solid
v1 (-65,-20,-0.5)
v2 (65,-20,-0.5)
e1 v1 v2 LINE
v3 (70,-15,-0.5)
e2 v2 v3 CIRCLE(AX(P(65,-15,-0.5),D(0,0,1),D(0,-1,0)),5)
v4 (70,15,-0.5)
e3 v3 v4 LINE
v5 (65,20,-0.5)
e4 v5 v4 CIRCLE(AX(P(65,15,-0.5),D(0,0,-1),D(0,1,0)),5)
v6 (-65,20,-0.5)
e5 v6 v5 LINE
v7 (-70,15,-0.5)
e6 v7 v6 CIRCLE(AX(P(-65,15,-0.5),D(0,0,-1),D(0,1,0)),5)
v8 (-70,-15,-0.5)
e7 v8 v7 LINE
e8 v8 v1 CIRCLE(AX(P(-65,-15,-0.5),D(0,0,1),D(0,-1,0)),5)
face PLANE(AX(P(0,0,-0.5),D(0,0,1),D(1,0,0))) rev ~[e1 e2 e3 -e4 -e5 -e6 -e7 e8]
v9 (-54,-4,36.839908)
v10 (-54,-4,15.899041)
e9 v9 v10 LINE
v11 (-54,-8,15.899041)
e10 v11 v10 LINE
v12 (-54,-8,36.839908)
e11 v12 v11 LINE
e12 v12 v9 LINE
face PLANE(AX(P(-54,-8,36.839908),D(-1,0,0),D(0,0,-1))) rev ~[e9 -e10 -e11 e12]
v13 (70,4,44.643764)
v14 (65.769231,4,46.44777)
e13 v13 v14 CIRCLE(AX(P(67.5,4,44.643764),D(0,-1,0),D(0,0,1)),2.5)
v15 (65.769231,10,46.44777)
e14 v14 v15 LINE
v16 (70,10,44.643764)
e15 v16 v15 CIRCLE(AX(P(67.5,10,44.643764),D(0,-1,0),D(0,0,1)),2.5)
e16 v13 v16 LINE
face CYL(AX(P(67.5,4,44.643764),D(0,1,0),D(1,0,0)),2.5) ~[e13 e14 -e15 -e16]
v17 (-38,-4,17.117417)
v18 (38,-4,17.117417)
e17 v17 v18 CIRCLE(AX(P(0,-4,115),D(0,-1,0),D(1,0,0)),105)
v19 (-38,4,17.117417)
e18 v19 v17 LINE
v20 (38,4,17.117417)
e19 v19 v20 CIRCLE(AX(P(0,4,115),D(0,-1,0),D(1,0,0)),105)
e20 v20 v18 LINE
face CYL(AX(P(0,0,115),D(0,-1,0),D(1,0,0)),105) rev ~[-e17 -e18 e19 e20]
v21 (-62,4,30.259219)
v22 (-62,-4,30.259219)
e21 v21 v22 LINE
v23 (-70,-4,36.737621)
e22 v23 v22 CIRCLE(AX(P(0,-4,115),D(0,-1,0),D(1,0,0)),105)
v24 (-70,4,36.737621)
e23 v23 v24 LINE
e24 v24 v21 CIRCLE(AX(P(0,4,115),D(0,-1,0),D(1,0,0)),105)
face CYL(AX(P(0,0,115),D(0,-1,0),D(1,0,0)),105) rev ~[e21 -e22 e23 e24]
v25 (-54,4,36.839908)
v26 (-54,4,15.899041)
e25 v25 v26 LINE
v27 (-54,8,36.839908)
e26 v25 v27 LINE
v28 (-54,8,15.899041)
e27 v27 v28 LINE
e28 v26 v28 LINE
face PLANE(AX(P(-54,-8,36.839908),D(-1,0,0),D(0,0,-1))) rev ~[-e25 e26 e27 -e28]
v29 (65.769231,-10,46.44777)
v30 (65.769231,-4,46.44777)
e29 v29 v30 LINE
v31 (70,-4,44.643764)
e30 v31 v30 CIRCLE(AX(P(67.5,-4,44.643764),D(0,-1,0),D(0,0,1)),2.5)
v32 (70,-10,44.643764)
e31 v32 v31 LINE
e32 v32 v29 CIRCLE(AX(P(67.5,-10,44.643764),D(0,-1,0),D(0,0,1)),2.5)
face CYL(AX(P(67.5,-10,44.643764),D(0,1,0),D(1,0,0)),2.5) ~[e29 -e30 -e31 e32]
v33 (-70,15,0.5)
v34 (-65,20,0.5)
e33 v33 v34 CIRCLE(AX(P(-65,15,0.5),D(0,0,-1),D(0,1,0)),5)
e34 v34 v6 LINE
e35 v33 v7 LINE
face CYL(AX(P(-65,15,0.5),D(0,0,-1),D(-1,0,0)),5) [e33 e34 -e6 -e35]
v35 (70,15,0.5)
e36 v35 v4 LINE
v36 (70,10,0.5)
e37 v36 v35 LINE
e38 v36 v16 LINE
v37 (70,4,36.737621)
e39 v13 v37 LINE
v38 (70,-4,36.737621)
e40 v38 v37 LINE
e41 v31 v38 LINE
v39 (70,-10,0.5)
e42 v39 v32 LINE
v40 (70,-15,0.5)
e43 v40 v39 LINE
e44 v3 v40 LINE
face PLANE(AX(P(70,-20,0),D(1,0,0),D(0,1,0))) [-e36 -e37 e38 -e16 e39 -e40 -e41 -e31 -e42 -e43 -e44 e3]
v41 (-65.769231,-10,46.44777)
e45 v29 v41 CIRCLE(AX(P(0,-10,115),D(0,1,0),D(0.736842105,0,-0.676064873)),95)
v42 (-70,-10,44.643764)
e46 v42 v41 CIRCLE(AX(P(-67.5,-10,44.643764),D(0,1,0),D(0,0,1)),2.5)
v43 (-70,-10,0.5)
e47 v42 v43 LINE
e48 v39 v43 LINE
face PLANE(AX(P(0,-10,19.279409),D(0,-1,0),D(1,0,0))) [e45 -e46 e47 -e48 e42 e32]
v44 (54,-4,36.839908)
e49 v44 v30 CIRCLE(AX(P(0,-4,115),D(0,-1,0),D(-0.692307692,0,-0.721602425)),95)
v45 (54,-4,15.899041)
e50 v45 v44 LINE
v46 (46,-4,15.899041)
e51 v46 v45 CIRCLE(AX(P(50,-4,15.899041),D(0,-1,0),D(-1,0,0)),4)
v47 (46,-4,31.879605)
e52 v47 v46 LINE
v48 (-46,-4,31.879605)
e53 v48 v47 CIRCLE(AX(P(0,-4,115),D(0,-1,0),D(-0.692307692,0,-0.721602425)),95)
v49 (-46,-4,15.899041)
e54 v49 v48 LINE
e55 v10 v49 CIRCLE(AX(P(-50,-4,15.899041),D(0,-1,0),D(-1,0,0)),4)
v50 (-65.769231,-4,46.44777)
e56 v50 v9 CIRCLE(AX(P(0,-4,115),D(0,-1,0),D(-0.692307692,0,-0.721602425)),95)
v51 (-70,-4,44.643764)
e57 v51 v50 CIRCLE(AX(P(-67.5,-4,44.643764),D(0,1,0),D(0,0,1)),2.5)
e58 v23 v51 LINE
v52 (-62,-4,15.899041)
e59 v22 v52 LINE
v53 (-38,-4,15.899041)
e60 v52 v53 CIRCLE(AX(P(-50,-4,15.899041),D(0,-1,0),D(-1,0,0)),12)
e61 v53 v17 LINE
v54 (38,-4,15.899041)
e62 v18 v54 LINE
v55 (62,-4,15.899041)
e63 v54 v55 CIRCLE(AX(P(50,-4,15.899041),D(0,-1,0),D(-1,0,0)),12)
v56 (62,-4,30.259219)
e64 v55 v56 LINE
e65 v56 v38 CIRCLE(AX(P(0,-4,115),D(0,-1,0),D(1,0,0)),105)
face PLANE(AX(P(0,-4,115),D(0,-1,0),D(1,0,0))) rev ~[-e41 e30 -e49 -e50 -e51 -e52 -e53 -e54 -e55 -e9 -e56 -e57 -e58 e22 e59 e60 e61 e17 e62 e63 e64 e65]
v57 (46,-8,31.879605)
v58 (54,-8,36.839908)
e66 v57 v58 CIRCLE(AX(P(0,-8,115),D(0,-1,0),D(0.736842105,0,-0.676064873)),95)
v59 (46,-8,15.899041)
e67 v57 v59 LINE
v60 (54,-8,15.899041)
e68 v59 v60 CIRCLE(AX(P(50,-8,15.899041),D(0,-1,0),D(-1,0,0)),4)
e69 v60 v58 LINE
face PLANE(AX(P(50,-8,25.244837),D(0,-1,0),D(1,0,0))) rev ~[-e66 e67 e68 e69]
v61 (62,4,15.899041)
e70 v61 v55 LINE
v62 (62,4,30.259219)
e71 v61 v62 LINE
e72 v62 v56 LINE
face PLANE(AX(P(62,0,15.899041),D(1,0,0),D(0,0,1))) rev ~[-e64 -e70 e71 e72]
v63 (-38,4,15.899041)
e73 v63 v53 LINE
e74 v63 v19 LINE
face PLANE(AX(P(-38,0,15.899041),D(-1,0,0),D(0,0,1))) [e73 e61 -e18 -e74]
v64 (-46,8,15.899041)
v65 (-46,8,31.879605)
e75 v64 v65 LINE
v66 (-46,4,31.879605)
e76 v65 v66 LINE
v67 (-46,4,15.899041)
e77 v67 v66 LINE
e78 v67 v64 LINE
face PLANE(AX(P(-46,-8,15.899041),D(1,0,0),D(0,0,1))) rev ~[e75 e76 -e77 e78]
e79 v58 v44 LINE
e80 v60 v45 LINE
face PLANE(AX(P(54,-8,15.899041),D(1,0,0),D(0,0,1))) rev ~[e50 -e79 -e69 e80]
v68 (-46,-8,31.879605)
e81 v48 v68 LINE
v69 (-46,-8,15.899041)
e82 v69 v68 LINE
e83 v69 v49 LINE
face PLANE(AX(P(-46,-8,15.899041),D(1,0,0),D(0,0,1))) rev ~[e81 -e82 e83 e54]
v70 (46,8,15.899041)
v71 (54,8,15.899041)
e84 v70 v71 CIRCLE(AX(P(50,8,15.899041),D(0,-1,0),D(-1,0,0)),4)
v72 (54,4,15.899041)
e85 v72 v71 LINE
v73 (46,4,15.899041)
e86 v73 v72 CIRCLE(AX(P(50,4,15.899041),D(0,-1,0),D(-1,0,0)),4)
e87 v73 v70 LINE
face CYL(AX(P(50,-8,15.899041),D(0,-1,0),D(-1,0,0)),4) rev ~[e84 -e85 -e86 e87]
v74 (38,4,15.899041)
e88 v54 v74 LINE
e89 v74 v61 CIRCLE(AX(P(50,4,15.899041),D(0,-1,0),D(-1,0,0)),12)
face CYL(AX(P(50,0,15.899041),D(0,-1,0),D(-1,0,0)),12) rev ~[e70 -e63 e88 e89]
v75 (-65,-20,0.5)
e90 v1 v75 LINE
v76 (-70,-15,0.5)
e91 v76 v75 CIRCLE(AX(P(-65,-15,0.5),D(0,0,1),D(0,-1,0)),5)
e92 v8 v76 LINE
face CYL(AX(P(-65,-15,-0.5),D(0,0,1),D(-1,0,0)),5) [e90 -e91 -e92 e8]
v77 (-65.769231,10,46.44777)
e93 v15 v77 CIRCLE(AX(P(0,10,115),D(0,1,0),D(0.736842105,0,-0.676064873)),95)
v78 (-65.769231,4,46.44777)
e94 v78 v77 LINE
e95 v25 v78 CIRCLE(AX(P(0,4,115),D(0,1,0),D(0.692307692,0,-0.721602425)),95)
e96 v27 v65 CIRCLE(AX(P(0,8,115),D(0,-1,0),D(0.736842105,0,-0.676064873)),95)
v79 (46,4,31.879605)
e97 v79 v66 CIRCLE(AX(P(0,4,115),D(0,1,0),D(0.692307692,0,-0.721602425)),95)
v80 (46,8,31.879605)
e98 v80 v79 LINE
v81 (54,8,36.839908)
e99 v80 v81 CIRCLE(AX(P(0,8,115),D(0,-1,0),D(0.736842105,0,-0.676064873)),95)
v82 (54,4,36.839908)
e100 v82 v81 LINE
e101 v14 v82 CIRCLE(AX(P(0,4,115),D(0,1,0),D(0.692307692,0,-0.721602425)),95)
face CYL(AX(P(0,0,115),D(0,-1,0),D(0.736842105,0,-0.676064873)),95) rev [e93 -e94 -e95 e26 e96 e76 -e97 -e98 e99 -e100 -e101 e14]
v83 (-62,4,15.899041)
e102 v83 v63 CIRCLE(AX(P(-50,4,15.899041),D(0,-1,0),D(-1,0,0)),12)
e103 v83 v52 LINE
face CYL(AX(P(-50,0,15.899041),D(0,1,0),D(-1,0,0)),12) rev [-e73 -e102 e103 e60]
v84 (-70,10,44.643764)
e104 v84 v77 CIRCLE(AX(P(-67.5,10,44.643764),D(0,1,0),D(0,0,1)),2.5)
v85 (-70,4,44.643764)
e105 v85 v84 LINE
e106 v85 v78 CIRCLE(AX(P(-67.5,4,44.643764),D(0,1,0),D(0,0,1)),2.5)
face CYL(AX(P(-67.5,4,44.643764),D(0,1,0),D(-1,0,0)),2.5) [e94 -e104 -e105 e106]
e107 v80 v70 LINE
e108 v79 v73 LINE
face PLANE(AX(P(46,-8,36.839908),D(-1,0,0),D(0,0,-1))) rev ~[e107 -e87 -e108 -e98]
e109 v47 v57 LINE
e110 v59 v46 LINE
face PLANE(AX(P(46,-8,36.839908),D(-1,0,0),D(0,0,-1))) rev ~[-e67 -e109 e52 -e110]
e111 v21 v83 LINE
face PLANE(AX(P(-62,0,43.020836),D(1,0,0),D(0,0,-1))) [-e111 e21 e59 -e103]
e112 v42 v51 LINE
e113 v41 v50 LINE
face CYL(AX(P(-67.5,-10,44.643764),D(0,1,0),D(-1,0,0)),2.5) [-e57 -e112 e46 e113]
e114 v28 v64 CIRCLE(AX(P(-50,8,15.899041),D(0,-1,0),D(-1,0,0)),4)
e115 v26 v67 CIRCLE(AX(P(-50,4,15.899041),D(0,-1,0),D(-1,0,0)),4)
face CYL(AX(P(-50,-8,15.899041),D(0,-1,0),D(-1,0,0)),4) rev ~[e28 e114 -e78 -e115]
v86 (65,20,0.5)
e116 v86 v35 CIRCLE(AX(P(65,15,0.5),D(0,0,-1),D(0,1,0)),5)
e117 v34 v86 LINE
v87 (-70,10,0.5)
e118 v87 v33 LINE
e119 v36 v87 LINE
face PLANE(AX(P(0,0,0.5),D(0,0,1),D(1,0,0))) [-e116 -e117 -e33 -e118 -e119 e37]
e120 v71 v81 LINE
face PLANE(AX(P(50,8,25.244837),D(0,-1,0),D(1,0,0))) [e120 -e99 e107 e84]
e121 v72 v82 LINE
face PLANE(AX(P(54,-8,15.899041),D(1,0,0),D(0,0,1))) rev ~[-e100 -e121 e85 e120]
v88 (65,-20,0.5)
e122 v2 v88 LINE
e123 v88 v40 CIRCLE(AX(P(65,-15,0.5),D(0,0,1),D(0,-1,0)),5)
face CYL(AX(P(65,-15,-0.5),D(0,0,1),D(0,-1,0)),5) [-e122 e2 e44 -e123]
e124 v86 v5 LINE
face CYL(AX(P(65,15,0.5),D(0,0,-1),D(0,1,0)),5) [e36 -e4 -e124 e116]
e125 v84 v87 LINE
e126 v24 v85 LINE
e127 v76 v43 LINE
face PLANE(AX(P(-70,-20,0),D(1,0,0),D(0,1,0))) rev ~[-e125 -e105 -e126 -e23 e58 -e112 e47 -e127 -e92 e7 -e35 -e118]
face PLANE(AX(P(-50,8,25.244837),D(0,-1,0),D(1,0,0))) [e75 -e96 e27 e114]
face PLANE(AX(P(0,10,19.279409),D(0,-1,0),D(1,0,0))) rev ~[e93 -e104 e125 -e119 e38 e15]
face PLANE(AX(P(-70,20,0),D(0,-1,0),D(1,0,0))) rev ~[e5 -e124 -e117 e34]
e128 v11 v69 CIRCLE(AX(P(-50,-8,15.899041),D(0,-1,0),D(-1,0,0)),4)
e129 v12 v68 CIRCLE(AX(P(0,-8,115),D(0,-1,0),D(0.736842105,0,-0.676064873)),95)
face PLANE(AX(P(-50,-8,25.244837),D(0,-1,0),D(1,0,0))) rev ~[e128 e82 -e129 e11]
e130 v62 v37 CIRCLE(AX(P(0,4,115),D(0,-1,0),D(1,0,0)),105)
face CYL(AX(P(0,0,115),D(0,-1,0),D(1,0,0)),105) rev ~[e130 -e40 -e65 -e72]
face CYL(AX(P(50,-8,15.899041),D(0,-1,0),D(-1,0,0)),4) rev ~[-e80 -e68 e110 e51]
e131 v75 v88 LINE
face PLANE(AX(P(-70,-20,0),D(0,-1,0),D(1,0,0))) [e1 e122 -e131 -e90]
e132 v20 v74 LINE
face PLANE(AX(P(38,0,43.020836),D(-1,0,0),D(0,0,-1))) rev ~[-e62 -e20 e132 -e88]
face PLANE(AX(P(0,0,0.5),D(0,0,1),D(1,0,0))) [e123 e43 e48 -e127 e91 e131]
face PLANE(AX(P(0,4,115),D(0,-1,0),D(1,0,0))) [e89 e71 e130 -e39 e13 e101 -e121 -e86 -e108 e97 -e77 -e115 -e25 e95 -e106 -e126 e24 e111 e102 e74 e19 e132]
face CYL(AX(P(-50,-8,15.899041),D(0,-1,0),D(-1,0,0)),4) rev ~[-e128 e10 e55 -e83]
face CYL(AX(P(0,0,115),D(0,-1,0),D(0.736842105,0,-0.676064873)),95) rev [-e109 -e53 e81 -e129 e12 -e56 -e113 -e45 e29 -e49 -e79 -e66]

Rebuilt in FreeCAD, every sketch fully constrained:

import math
import FreeCAD as App
import Part
import Sketcher


def edges_at(feature, points):
    """Names of the edges that pass closest to the given points."""
    edges = feature.Shape.Edges
    near = lambda p: min(range(len(edges)), key=lambda i: edges[i].distToShape(Part.Vertex(*p))[0])
    return sorted({f"Edge{near(p) + 1}" for p in points})


def add_polygon(sketch, points):
    """Adds a closed chain of lines whose ends are joined by coincident constraints."""
    first, n = sketch.GeometryCount, len(points)
    for a, b in zip(points, points[1:] + points[:1]):
        sketch.addGeometry(Part.LineSegment(App.Vector(*a, 0), App.Vector(*b, 0)), False)
    for i in range(n):
        sketch.addConstraint(Sketcher.Constraint("Coincident", first + i, 2, first + (i + 1) % n, 1))

doc = App.newDocument("Part")
body = doc.addObject("PartDesign::Body", "Body")

# Sketch on XZ plane
sketch1 = body.newObject("Sketcher::SketchObject", "Sketch")
sketch1.AttachmentSupport = (doc.getObject("XZ_Plane"), [""])
sketch1.MapMode = "FlatFace"
sketch1.addGeometry([
    Part.LineSegment(App.Vector(-70, 51, 0), App.Vector(-70, 0, 0)),
    Part.LineSegment(App.Vector(-70, 0, 0), App.Vector(70, 0, 0)),
    Part.LineSegment(App.Vector(70, 0, 0), App.Vector(70, 51, 0)),
    Part.ArcOfCircle(Part.Circle(App.Vector(0, 115, 0), App.Vector(0, 0, 1), 95), math.radians(-137), math.radians(-43)),
], False)
sketch1.addConstraint([
    Sketcher.Constraint("Coincident", 0, 2, 1, 1),
    Sketcher.Constraint("Coincident", 1, 2, 2, 1),
    Sketcher.Constraint("Coincident", 2, 2, 3, 2),
    Sketcher.Constraint("Coincident", 3, 1, 0, 1),
    Sketcher.Constraint("Vertical", 0),
    Sketcher.Constraint("Horizontal", 1),
    Sketcher.Constraint("Vertical", 2),
    Sketcher.Constraint("Symmetric", 0, 2, 1, 2, -1, 1),
    Sketcher.Constraint("PointOnObject", 3, 3, -2),
    Sketcher.Constraint("Radius", 3, 95.0),
    Sketcher.Constraint("DistanceX", 1, 1, 1, 2, 140.0),
    Sketcher.Constraint("DistanceY", -1, 1, 3, 3, 115.0),
])
pad1 = body.newObject("PartDesign::Pad", "Pad")
pad1.Profile = sketch1
pad1.Length = 20
pad1.Midplane = True

# Sketch on XZ plane
sketch2 = body.newObject("Sketcher::SketchObject", "Sketch001")
sketch2.AttachmentSupport = (doc.getObject("XZ_Plane"), [""])
sketch2.MapMode = "FlatFace"
sketch2.addGeometry(Part.Circle(App.Vector(0, 115, 0), App.Vector(0, 0, 1), 105), False)
sketch2.addConstraint([
    Sketcher.Constraint("PointOnObject", 0, 3, -2),
    Sketcher.Constraint("Diameter", 0, 210.0),
    Sketcher.Constraint("DistanceY", -1, 1, 0, 3, 115.0),
])
pocket1 = body.newObject("PartDesign::Pocket", "Pocket")
pocket1.Profile = sketch2
pocket1.Type = "TwoLengths"
pocket1.Length = 4
pocket1.Length2 = 4
doc.recompute()

fillet = body.newObject("PartDesign::Fillet", "Fillet")
fillet.Base = (pocket1, edges_at(pocket1, [
    (-70, 7, 50.774),
    (-70, -7, 50.774),
    (70, 7, 50.774),
    (70, -7, 50.774),
]))
fillet.Radius = 2.5

# Sketch on XZ plane
sketch3 = body.newObject("Sketcher::SketchObject", "Sketch002")
sketch3.AttachmentSupport = (doc.getObject("XZ_Plane"), [""])
sketch3.MapMode = "FlatFace"
sketch3.addGeometry([
    Part.LineSegment(App.Vector(-62, 43, 0), App.Vector(-62, 16, 0)),  # 0
    Part.ArcOfCircle(Part.Circle(App.Vector(-50, 16, 0), App.Vector(0, 0, 1), 12), math.radians(180), math.radians(360)),  # 1
    Part.LineSegment(App.Vector(-38, 16, 0), App.Vector(-38, 43, 0)),  # 2
    Part.LineSegment(App.Vector(-38, 43, 0), App.Vector(-62, 43, 0)),  # 3
    Part.ArcOfCircle(Part.Circle(App.Vector(50, 16, 0), App.Vector(0, 0, 1), 12), math.radians(180), math.radians(360)),  # 4
    Part.LineSegment(App.Vector(62, 16, 0), App.Vector(62, 43, 0)),  # 5
    Part.LineSegment(App.Vector(62, 43, 0), App.Vector(38, 43, 0)),  # 6
    Part.LineSegment(App.Vector(38, 43, 0), App.Vector(38, 16, 0)),  # 7
], False)
sketch3.addConstraint([
    Sketcher.Constraint("Tangent", 0, 2, 1, 1),
    Sketcher.Constraint("Tangent", 1, 2, 2, 1),
    Sketcher.Constraint("Coincident", 2, 2, 3, 1),
    Sketcher.Constraint("Coincident", 3, 2, 0, 1),
    Sketcher.Constraint("Tangent", 4, 2, 5, 1),
    Sketcher.Constraint("Coincident", 5, 2, 6, 1),
    Sketcher.Constraint("Coincident", 6, 2, 7, 1),
    Sketcher.Constraint("Tangent", 7, 2, 4, 1),
    Sketcher.Constraint("Vertical", 0),
    Sketcher.Constraint("Vertical", 2),
    Sketcher.Constraint("Horizontal", 3),
    Sketcher.Constraint("Vertical", 5),
    Sketcher.Constraint("Horizontal", 6),
    Sketcher.Constraint("Vertical", 7),
    Sketcher.Constraint("Equal", 1, 4),
    Sketcher.Constraint("Symmetric", 1, 3, 4, 3, -2),
    Sketcher.Constraint("Horizontal", 3, 2, 5, 2),
    Sketcher.Constraint("Radius", 1, 12.0),
    Sketcher.Constraint("DistanceX", 1, 3, -1, 1, 50.0),
    Sketcher.Constraint("DistanceY", 0, 2, 0, 1, 27.121795),
    Sketcher.Constraint("DistanceY", -1, 1, 1, 3, 15.899041),
])
pocket2 = body.newObject("PartDesign::Pocket", "Pocket001")
pocket2.Profile = sketch3
pocket2.Length = 8
pocket2.Midplane = True

# Sketch on XZ plane
sketch4 = body.newObject("Sketcher::SketchObject", "Sketch003")
sketch4.AttachmentSupport = (doc.getObject("XZ_Plane"), [""])
sketch4.MapMode = "FlatFace"
sketch4.AttachmentOffset = App.Placement(App.Vector(0, 0, 8), App.Rotation())
sketch4.addGeometry([
    Part.LineSegment(App.Vector(-54, 36.8, 0), App.Vector(-54, 15.9, 0)),  # 0
    Part.ArcOfCircle(Part.Circle(App.Vector(-50, 15.9, 0), App.Vector(0, 0, 1), 4), math.radians(180), math.radians(360)),  # 1
    Part.LineSegment(App.Vector(-46, 15.9, 0), App.Vector(-46, 36.8, 0)),  # 2
    Part.LineSegment(App.Vector(-46, 36.8, 0), App.Vector(-54, 36.8, 0)),  # 3
    Part.ArcOfCircle(Part.Circle(App.Vector(50, 15.9, 0), App.Vector(0, 0, 1), 4), math.radians(180), math.radians(360)),  # 4
    Part.LineSegment(App.Vector(54, 15.9, 0), App.Vector(54, 36.8, 0)),  # 5
    Part.LineSegment(App.Vector(54, 36.8, 0), App.Vector(46, 36.8, 0)),  # 6
    Part.LineSegment(App.Vector(46, 36.8, 0), App.Vector(46, 15.9, 0)),  # 7
], False)
sketch4.addConstraint([
    Sketcher.Constraint("Tangent", 0, 2, 1, 1),
    Sketcher.Constraint("Tangent", 1, 2, 2, 1),
    Sketcher.Constraint("Coincident", 2, 2, 3, 1),
    Sketcher.Constraint("Coincident", 3, 2, 0, 1),
    Sketcher.Constraint("Tangent", 4, 2, 5, 1),
    Sketcher.Constraint("Coincident", 5, 2, 6, 1),
    Sketcher.Constraint("Coincident", 6, 2, 7, 1),
    Sketcher.Constraint("Tangent", 7, 2, 4, 1),
    Sketcher.Constraint("Vertical", 0),
    Sketcher.Constraint("Vertical", 2),
    Sketcher.Constraint("Horizontal", 3),
    Sketcher.Constraint("Vertical", 5),
    Sketcher.Constraint("Horizontal", 6),
    Sketcher.Constraint("Vertical", 7),
    Sketcher.Constraint("Equal", 1, 4),
    Sketcher.Constraint("Symmetric", 1, 3, 4, 3, -2),
    Sketcher.Constraint("Horizontal", 3, 2, 5, 2),
    Sketcher.Constraint("Radius", 1, 4.0),
    Sketcher.Constraint("DistanceX", 1, 3, -1, 1, 50.0),
    Sketcher.Constraint("DistanceY", 0, 2, 0, 1, 20.940867),
    Sketcher.Constraint("DistanceY", -1, 1, 1, 3, 15.899041),
])
pocket3 = body.newObject("PartDesign::Pocket", "Pocket002")
pocket3.Profile = sketch4
pocket3.Length = 16

# Sketch on XY plane
sketch5 = body.newObject("Sketcher::SketchObject", "Sketch004")
sketch5.AttachmentSupport = (doc.getObject("XY_Plane"), [""])
sketch5.MapMode = "FlatFace"
add_polygon(sketch5, [(-70, 20), (-70, -20), (70, -20), (70, 20)])  # lines 0-3
sketch5.addConstraint([
    Sketcher.Constraint("Vertical", 0),
    Sketcher.Constraint("Horizontal", 1),
    Sketcher.Constraint("Vertical", 2),
    Sketcher.Constraint("Horizontal", 3),
    Sketcher.Constraint("Symmetric", 0, 2, 2, 2, -1, 1),
    Sketcher.Constraint("DistanceX", 1, 1, 1, 2, 140.0),
    Sketcher.Constraint("DistanceY", 0, 2, 0, 1, 40.0),
])
pad2 = body.newObject("PartDesign::Pad", "Pad001")
pad2.Profile = sketch5
pad2.Length = 1
pad2.Midplane = True
doc.recompute()

fillet2 = body.newObject("PartDesign::Fillet", "Fillet001")
fillet2.Base = (pad2, edges_at(pad2, [
    (-70, -20, 0),
    (70, -20, 0),
    (70, 20, 0),
    (-70, 20, 0),
]))
fillet2.Radius = 5

doc.recompute()
